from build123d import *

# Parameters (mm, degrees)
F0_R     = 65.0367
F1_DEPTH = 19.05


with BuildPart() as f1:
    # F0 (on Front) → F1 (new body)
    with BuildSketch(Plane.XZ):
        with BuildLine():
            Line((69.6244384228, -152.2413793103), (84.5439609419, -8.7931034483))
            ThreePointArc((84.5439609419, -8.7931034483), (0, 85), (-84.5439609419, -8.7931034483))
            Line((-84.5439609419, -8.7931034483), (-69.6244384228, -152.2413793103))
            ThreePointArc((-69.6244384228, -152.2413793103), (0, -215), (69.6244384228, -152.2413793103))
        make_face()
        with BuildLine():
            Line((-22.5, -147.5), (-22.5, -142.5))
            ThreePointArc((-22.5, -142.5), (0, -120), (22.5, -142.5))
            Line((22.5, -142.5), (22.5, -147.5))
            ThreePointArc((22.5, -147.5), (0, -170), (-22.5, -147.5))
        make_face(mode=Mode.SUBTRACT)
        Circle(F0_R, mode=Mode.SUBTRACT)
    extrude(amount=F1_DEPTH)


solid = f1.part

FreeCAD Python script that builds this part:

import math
import FreeCAD as App
import Part
import Sketcher

V = App.Vector

doc = App.newDocument("Part")
body = doc.addObject("PartDesign::Body", "Body")

# Sketch on XZ plane
sketch1 = body.newObject("Sketcher::SketchObject", "Sketch")
sketch1.AttachmentSupport = (doc.getObject("XZ_Plane"), [""])
sketch1.MapMode = "FlatFace"
sketch1.addGeometry([
    Part.LineSegment(V(69.624438, -152.241379, 0), V(84.543961, -8.793103, 0)),  # 0
    Part.ArcOfCircle(Part.Circle(V(0, 0, 0), V(0, 0, 1), 85), math.radians(-5.937772), math.radians(185.937772)),  # 1
    Part.LineSegment(V(-84.543961, -8.793103, 0), V(-69.624438, -152.241379, 0)),  # 2
    Part.ArcOfCircle(Part.Circle(V(0, -145, 0), V(0, 0, 1), 70), math.radians(-174.062228), math.radians(-5.937772)),  # 3
    Part.ArcOfCircle(Part.Circle(V(0, -147.5, 0), V(0, 0, 1), 22.5), math.radians(180), math.radians(360)),  # 4
    Part.LineSegment(V(-22.5, -147.5, 0), V(-22.5, -142.5, 0)),  # 5
    Part.ArcOfCircle(Part.Circle(V(0, -142.5, 0), V(0, 0, 1), 22.5), math.radians(0), math.radians(180)),  # 6
    Part.LineSegment(V(22.5, -142.5, 0), V(22.5, -147.5, 0)),  # 7
    Part.Circle(V(0, 0, 0), V(0, 0, 1), 65.0367),  # 8
], False)
sketch1.addConstraint([
    Sketcher.Constraint("Tangent", 0, 2, 1, 1),
    Sketcher.Constraint("Tangent", 1, 2, 2, 1),
    Sketcher.Constraint("Tangent", 2, 2, 3, 1),
    Sketcher.Constraint("Tangent", 3, 2, 0, 1),
    Sketcher.Constraint("Tangent", 4, 1, 5, 1),
    Sketcher.Constraint("Tangent", 5, 2, 6, 2),
    Sketcher.Constraint("Tangent", 6, 1, 7, 1),
    Sketcher.Constraint("Tangent", 7, 2, 4, 2),
    Sketcher.Constraint("Vertical", 5),
    Sketcher.Constraint("Vertical", 7),
    Sketcher.Constraint("Coincident", 1, 3, -1, 1),
    Sketcher.Constraint("Coincident", 8, 3, -1, 1),
    Sketcher.Constraint("PointOnObject", 3, 3, -2),
    Sketcher.Constraint("PointOnObject", 4, 3, -2),
    Sketcher.Constraint("Radius", 1, 85.0),
    Sketcher.Constraint("Radius", 3, 70.0),
    Sketcher.Constraint("Radius", 4, 22.5),
    Sketcher.Constraint("DistanceY", 5, 1, 5, 2, 5.0),
    Sketcher.Constraint("DistanceY", 3, 3, -1, 1, 145.0),
    Sketcher.Constraint("Diameter", 8, 130.0734),
    Sketcher.Constraint("DistanceY", 4, 3, -1, 1, 147.5),
])
pad1 = body.newObject("PartDesign::Pad", "Pad")
pad1.Profile = sketch1
pad1.Length = 19.05

doc.recompute()
